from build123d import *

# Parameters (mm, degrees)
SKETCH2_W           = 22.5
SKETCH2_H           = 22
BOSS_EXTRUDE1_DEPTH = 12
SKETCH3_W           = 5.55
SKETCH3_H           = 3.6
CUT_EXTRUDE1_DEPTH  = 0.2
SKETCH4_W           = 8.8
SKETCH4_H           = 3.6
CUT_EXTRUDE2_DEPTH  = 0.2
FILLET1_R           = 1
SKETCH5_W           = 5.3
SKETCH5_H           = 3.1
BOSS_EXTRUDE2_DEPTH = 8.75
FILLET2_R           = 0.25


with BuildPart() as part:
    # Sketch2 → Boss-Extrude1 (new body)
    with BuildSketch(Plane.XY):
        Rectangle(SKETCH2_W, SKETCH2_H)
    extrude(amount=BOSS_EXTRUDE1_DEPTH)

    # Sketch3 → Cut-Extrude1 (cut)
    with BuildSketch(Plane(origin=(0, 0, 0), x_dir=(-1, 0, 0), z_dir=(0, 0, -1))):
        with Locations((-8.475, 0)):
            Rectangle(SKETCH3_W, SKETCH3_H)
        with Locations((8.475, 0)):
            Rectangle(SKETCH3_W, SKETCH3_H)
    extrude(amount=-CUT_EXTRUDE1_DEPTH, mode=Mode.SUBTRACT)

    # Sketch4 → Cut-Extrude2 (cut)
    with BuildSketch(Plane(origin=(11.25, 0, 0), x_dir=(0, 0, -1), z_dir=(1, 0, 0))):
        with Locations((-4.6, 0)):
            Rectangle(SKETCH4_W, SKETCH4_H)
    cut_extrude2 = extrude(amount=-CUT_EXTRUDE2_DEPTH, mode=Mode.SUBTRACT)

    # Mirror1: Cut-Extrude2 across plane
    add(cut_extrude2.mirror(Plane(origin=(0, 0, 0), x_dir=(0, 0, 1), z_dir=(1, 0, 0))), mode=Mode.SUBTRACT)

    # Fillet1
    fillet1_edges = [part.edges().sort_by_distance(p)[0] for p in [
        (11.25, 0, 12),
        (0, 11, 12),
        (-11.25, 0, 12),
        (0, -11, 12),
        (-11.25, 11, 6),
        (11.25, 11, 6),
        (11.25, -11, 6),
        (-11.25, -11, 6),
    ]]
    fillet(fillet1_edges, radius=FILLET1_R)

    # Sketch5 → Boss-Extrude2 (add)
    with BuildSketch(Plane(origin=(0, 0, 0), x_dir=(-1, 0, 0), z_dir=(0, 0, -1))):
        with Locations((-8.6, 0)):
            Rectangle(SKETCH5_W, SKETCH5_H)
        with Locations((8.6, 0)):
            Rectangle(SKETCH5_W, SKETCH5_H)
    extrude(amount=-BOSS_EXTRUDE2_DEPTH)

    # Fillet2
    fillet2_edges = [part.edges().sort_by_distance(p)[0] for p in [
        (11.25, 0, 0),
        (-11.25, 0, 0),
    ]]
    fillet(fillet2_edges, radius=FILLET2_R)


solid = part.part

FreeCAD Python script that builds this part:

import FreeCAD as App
import Part
import Sketcher

V = App.Vector


def edges_at(feature, points):
    """Names of the edges that pass closest to the given points."""
    edges = feature.Shape.Edges
    near = lambda p: min(range(len(edges)), key=lambda i: edges[i].distToShape(Part.Vertex(*p))[0])
    return sorted({f"Edge{near(p) + 1}" for p in points})

doc = App.newDocument("Part")
body = doc.addObject("PartDesign::Body", "Body")

sketch1 = body.newObject("Sketcher::SketchObject", "Sketch")
sketch1.AttachmentSupport = (doc.getObject("XY_Plane"), [""])
sketch1.MapMode = "FlatFace"
sketch1.addGeometry([
    Part.LineSegment(V(-11, 11, 0), V(-11, -11, 0)),
    Part.LineSegment(V(-11, -11, 0), V(11, -11, 0)),
    Part.LineSegment(V(11, -11, 0), V(11, 11, 0)),
    Part.LineSegment(V(11, 11, 0), V(-11, 11, 0)),
], False)
sketch1.addConstraint([
    Sketcher.Constraint("Coincident", 0, 2, 1, 1),
    Sketcher.Constraint("Coincident", 1, 2, 2, 1),
    Sketcher.Constraint("Coincident", 2, 2, 3, 1),
    Sketcher.Constraint("Coincident", 3, 2, 0, 1),
    Sketcher.Constraint("Vertical", 0),
    Sketcher.Constraint("Horizontal", 1),
    Sketcher.Constraint("Vertical", 2),
    Sketcher.Constraint("Horizontal", 3),
    Sketcher.Constraint("Symmetric", 0, 2, 2, 2, -1, 1),
    Sketcher.Constraint("DistanceY", 0, 2, 0, 1, 22.0),
    Sketcher.Constraint("DistanceX", 1, 1, 1, 2, 22.5),
])
pad1 = body.newObject("PartDesign::Pad", "Pad")
pad1.Profile = sketch1
pad1.Length = 12

sketch2 = body.newObject("Sketcher::SketchObject", "Sketch001")
sketch2.AttachmentSupport = (doc.getObject("XY_Plane"), [""])
sketch2.MapMode = "FlatFace"
sketch2.addGeometry([
    Part.LineSegment(V(11.2, 1.8, 0), V(11.2, -1.8, 0)),
    Part.LineSegment(V(11.2, -1.8, 0), V(5.7, -1.8, 0)),
    Part.LineSegment(V(5.7, -1.8, 0), V(5.7, 1.8, 0)),
    Part.LineSegment(V(5.7, 1.8, 0), V(11.2, 1.8, 0)),
    Part.LineSegment(V(-5.7, 1.8, 0), V(-5.7, -1.8, 0)),
    Part.LineSegment(V(-5.7, -1.8, 0), V(-11.2, -1.8, 0)),
    Part.LineSegment(V(-11.2, -1.8, 0), V(-11.2, 1.8, 0)),
    Part.LineSegment(V(-11.2, 1.8, 0), V(-5.7, 1.8, 0)),
], False)
sketch2.addConstraint([
    Sketcher.Constraint("Coincident", 0, 2, 1, 1),
    Sketcher.Constraint("Coincident", 1, 2, 2, 1),
    Sketcher.Constraint("Coincident", 2, 2, 3, 1),
    Sketcher.Constraint("Coincident", 3, 2, 0, 1),
    Sketcher.Constraint("Coincident", 4, 2, 5, 1),
    Sketcher.Constraint("Coincident", 5, 2, 6, 1),
    Sketcher.Constraint("Coincident", 6, 2, 7, 1),
    Sketcher.Constraint("Coincident", 7, 2, 4, 1),
    Sketcher.Constraint("Vertical", 0),
    Sketcher.Constraint("Horizontal", 1),
    Sketcher.Constraint("Vertical", 2),
    Sketcher.Constraint("Horizontal", 3),
    Sketcher.Constraint("Vertical", 4),
    Sketcher.Constraint("Horizontal", 5),
    Sketcher.Constraint("Vertical", 6),
    Sketcher.Constraint("Horizontal", 7),
    Sketcher.Constraint("Symmetric", 2, 2, 4, 2, -1, 1),
    Sketcher.Constraint("Symmetric", 0, 2, 6, 2, -1, 1),
    Sketcher.Constraint("Horizontal", 1, 2, 4, 2),
    Sketcher.Constraint("DistanceY", 0, 2, 0, 1, 3.6),
    Sketcher.Constraint("DistanceX", 1, 2, 1, 1, 5.55),
    Sketcher.Constraint("DistanceX", -1, 1, 1, 2, 5.7),
])
pocket1 = body.newObject("PartDesign::Pocket", "Pocket")
pocket1.Profile = sketch2
pocket1.Length = 0.2
pocket1.Reversed = True

sketch3 = body.newObject("Sketcher::SketchObject", "Sketch002")
sketch3.AttachmentSupport = (doc.getObject("YZ_Plane"), [""])
sketch3.MapMode = "FlatFace"
sketch3.AttachmentOffset = App.Placement(V(0, 0, 11.25), App.Rotation())
sketch3.addGeometry([
    Part.LineSegment(V(1.8, 9, 0), V(-1.8, 9, 0)),
    Part.LineSegment(V(-1.8, 9, 0), V(-1.8, 0.2, 0)),
    Part.LineSegment(V(-1.8, 0.2, 0), V(1.8, 0.2, 0)),
    Part.LineSegment(V(1.8, 0.2, 0), V(1.8, 9, 0)),
], False)
sketch3.addConstraint([
    Sketcher.Constraint("Coincident", 0, 2, 1, 1),
    Sketcher.Constraint("Coincident", 1, 2, 2, 1),
    Sketcher.Constraint("Coincident", 2, 2, 3, 1),
    Sketcher.Constraint("Coincident", 3, 2, 0, 1),
    Sketcher.Constraint("Horizontal", 0),
    Sketcher.Constraint("Vertical", 1),
    Sketcher.Constraint("Horizontal", 2),
    Sketcher.Constraint("Vertical", 3),
    Sketcher.Constraint("DistanceX", 0, 2, 0, 1, 3.6),
    Sketcher.Constraint("DistanceY", 1, 2, 1, 1, 8.8),
    Sketcher.Constraint("DistanceY", -1, 1, 0, 2, 9.0),
    Sketcher.Constraint("DistanceX", 0, 2, -1, 1, 1.8),
])
pocket2 = body.newObject("PartDesign::Pocket", "Pocket001")
pocket2.Profile = sketch3
pocket2.Length = 0.2
doc.recompute()

mirrored = body.newObject("PartDesign::Mirrored", "Mirrored")
mirrored.Originals = [pocket2]
mirrored.MirrorPlane = (doc.getObject("YZ_Plane"), [""])
body.Tip = mirrored
doc.recompute()

fillet = body.newObject("PartDesign::Fillet", "Fillet")
fillet.Base = (mirrored, edges_at(mirrored, [
    (11.25, 0, 12),
    (0, 11, 12),
    (-11.25, 0, 12),
    (0, -11, 12),
    (-11.25, 11, 6),
    (11.25, 11, 6),
    (11.25, -11, 6),
    (-11.25, -11, 6),
]))
fillet.Radius = 1

sketch4 = body.newObject("Sketcher::SketchObject", "Sketch003")
sketch4.AttachmentSupport = (doc.getObject("XY_Plane"), [""])
sketch4.MapMode = "FlatFace"
sketch4.addGeometry([
    Part.LineSegment(V(11.2, 1.6, 0), V(11.2, -1.6, 0)),
    Part.LineSegment(V(11.2, -1.6, 0), V(6, -1.6, 0)),
    Part.LineSegment(V(6, -1.6, 0), V(6, 1.6, 0)),
    Part.LineSegment(V(6, 1.6, 0), V(11.2, 1.6, 0)),
    Part.LineSegment(V(-6, 1.6, 0), V(-6, -1.6, 0)),
    Part.LineSegment(V(-6, -1.6, 0), V(-11.2, -1.6, 0)),
    Part.LineSegment(V(-11.2, -1.6, 0), V(-11.2, 1.6, 0)),
    Part.LineSegment(V(-11.2, 1.6, 0), V(-6, 1.6, 0)),
], False)
sketch4.addConstraint([
    Sketcher.Constraint("Coincident", 0, 2, 1, 1),
    Sketcher.Constraint("Coincident", 1, 2, 2, 1),
    Sketcher.Constraint("Coincident", 2, 2, 3, 1),
    Sketcher.Constraint("Coincident", 3, 2, 0, 1),
    Sketcher.Constraint("Coincident", 4, 2, 5, 1),
    Sketcher.Constraint("Coincident", 5, 2, 6, 1),
    Sketcher.Constraint("Coincident", 6, 2, 7, 1),
    Sketcher.Constraint("Coincident", 7, 2, 4, 1),
    Sketcher.Constraint("Vertical", 0),
    Sketcher.Constraint("Horizontal", 1),
    Sketcher.Constraint("Vertical", 2),
    Sketcher.Constraint("Horizontal", 3),
    Sketcher.Constraint("Vertical", 4),
    Sketcher.Constraint("Horizontal", 5),
    Sketcher.Constraint("Vertical", 6),
    Sketcher.Constraint("Horizontal", 7),
    Sketcher.Constraint("Symmetric", 2, 2, 4, 2, -1, 1),
    Sketcher.Constraint("Symmetric", 0, 2, 6, 2, -1, 1),
    Sketcher.Constraint("Horizontal", 1, 2, 4, 2),
    Sketcher.Constraint("DistanceX", 1, 2, 1, 1, 5.3),
    Sketcher.Constraint("DistanceY", 0, 2, 0, 1, 3.1),
    Sketcher.Constraint("DistanceX", 4, 2, 1, 2, 11.9),
])
pad2 = body.newObject("PartDesign::Pad", "Pad001")
pad2.Profile = sketch4
pad2.Length = 8.75
doc.recompute()

fillet2 = body.newObject("PartDesign::Fillet", "Fillet001")
fillet2.Base = (pad2, edges_at(pad2, [(11.25, 0, 0), (-11.25, 0, 0)]))
fillet2.Radius = 0.25

doc.recompute()
